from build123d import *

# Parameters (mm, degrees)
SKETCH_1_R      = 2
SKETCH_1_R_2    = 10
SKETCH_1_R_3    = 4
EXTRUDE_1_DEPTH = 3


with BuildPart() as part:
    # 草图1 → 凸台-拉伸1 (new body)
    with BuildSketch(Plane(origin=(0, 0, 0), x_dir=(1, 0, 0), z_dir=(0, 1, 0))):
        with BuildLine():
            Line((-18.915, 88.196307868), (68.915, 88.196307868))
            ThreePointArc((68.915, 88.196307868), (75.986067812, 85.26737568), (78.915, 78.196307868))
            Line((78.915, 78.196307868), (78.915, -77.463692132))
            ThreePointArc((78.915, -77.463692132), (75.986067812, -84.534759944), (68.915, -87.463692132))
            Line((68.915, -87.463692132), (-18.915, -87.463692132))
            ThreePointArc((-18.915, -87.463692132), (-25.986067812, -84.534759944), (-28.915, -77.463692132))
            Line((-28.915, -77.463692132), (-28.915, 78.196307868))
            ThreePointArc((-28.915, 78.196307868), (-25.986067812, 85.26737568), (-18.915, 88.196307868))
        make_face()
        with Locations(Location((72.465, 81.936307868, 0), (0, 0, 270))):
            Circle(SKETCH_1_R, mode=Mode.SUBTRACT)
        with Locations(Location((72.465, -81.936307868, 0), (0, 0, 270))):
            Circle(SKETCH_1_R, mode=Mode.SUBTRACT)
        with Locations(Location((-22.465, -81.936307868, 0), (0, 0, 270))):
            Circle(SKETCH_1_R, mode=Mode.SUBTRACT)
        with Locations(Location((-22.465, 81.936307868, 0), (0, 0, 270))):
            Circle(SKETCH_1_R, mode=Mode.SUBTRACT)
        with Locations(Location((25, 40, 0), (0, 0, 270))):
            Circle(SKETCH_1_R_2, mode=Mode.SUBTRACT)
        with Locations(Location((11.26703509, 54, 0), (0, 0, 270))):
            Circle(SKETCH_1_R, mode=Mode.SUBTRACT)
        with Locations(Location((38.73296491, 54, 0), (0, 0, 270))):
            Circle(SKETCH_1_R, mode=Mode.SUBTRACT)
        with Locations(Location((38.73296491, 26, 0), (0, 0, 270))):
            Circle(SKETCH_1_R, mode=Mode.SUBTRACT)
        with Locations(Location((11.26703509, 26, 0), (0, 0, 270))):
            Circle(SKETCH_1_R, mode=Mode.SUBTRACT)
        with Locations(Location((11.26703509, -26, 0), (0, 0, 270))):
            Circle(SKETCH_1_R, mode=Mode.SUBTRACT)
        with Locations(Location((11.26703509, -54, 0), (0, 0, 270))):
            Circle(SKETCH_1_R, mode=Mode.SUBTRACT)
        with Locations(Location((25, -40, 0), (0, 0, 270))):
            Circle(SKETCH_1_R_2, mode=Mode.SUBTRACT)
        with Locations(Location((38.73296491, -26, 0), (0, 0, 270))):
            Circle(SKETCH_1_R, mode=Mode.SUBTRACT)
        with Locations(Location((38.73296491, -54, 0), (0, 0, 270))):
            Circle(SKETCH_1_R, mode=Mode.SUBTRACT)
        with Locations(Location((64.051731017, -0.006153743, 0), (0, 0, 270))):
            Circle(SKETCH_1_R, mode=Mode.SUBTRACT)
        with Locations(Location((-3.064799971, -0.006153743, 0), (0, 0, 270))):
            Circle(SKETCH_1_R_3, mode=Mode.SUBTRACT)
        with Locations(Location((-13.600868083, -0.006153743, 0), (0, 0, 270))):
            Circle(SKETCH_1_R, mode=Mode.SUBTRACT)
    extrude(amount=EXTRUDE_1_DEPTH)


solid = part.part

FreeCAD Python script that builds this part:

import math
import FreeCAD as App
import Part
import Sketcher

V = App.Vector
Q = App.Units.Quantity

doc = App.newDocument("Part")
params = doc.addObject("Spreadsheet::Sheet", "Params")
for row, (alias, value) in enumerate([
    ("sketch1_diameter", "4 mm"),
    ("sketch1_diameter2", "20 mm"),
    ("sketch1_diameter3", "8 mm"),
    ("sketch1_width", "87.83 mm"),
    ("sketch1_height", "155.66 mm"),
    ("pad1_length", "3 mm"),
], start=1):
    params.set(f"A{row}", alias)
    params.set(f"B{row}", "=" + value)
    params.setAlias(f"B{row}", alias)

body = doc.addObject("PartDesign::Body", "Body")

sketch1 = body.newObject("Sketcher::SketchObject", "Sketch")
sketch1.AttachmentSupport = (doc.getObject("XZ_Plane"), [""])
sketch1.MapMode = "FlatFace"
sketch1.addGeometry(Part.LineSegment(V(68.915, -88.196308, 0), V(-18.915, -88.196308, 0)), False)
sketch1.addGeometry(Part.ArcOfCircle(Part.Circle(V(-18.915, -78.196308, 0), V(0, 0, 1), 10), math.radians(180), math.radians(270)), False)
sketch1.addGeometry(Part.LineSegment(V(-28.915, -78.196308, 0), V(-28.915, 77.463692, 0)), False)
sketch1.addGeometry(Part.ArcOfCircle(Part.Circle(V(-18.915, 77.463692, 0), V(0, 0, 1), 10), math.radians(90), math.radians(180)), False)
sketch1.addGeometry(Part.LineSegment(V(-18.915, 87.463692, 0), V(68.915, 87.463692, 0)), False)
sketch1.addGeometry(Part.ArcOfCircle(Part.Circle(V(68.915, 77.463692, 0), V(0, 0, 1), 10), math.radians(0), math.radians(90)), False)
sketch1.addGeometry(Part.LineSegment(V(78.915, 77.463692, 0), V(78.915, -78.196308, 0)), False)
sketch1.addGeometry(Part.ArcOfCircle(Part.Circle(V(68.915, -78.196308, 0), V(0, 0, 1), 10), math.radians(-90), math.radians(0)), False)
sketch1.addGeometry(Part.Circle(V(72.465, 81.936308, 0), V(0, 0, 1), 2), False)
sketch1.addGeometry(Part.Circle(V(38.732965, 54, 0), V(0, 0, 1), 2), False)
sketch1.addGeometry(Part.Circle(V(64.051731, 0.006154, 0), V(0, 0, 1), 2), False)
sketch1.addGeometry(Part.Circle(V(38.732965, 26, 0), V(0, 0, 1), 2), False)
sketch1.addGeometry(Part.Circle(V(11.267035, 54, 0), V(0, 0, 1), 2), False)
sketch1.addGeometry(Part.Circle(V(-22.465, 81.936308, 0), V(0, 0, 1), 2), False)
sketch1.addGeometry(Part.Circle(V(25, 40, 0), V(0, 0, 1), 10), False)
sketch1.addGeometry(Part.Circle(V(11.267035, 26, 0), V(0, 0, 1), 2), False)
sketch1.addGeometry(Part.Circle(V(-3.0648, 0.006154, 0), V(0, 0, 1), 4), False)
sketch1.addGeometry(Part.Circle(V(-13.600868, 0.006154, 0), V(0, 0, 1), 2), False)
sketch1.addGeometry(Part.Circle(V(38.732965, -26, 0), V(0, 0, 1), 2), False)
sketch1.addGeometry(Part.Circle(V(72.465, -81.936308, 0), V(0, 0, 1), 2), False)
sketch1.addGeometry(Part.Circle(V(38.732965, -54, 0), V(0, 0, 1), 2), False)
sketch1.addGeometry(Part.Circle(V(25, -40, 0), V(0, 0, 1), 10), False)
sketch1.addGeometry(Part.Circle(V(11.267035, -26, 0), V(0, 0, 1), 2), False)
sketch1.addGeometry(Part.Circle(V(11.267035, -54, 0), V(0, 0, 1), 2), False)
sketch1.addGeometry(Part.Circle(V(-22.465, -81.936308, 0), V(0, 0, 1), 2), False)
sketch1.addConstraint(Sketcher.Constraint("Tangent", 0, 2, 1, 2))
sketch1.addConstraint(Sketcher.Constraint("Tangent", 1, 1, 2, 1))
sketch1.addConstraint(Sketcher.Constraint("Tangent", 2, 2, 3, 2))
sketch1.addConstraint(Sketcher.Constraint("Tangent", 3, 1, 4, 1))
sketch1.addConstraint(Sketcher.Constraint("Tangent", 4, 2, 5, 2))
sketch1.addConstraint(Sketcher.Constraint("Tangent", 5, 1, 6, 1))
sketch1.addConstraint(Sketcher.Constraint("Tangent", 6, 2, 7, 2))
sketch1.addConstraint(Sketcher.Constraint("Tangent", 7, 1, 0, 1))
sketch1.addConstraint(Sketcher.Constraint("Horizontal", 0))
sketch1.addConstraint(Sketcher.Constraint("Vertical", 2))
sketch1.addConstraint(Sketcher.Constraint("Horizontal", 4))
sketch1.addConstraint(Sketcher.Constraint("Vertical", 6))
sketch1.addConstraint(Sketcher.Constraint("Equal", 1, 3))
sketch1.addConstraint(Sketcher.Constraint("Equal", 3, 5))
sketch1.addConstraint(Sketcher.Constraint("Equal", 5, 7))
sketch1.addConstraint(Sketcher.Constraint("Equal", 8, 9))
sketch1.addConstraint(Sketcher.Constraint("Equal", 9, 10))
sketch1.addConstraint(Sketcher.Constraint("Equal", 10, 11))
sketch1.addConstraint(Sketcher.Constraint("Equal", 11, 12))
sketch1.addConstraint(Sketcher.Constraint("Equal", 12, 13))
sketch1.addConstraint(Sketcher.Constraint("Equal", 7, 14))
sketch1.addConstraint(Sketcher.Constraint("Equal", 13, 15))
sketch1.addConstraint(Sketcher.Constraint("Equal", 15, 17))
sketch1.addConstraint(Sketcher.Constraint("Equal", 17, 18))
sketch1.addConstraint(Sketcher.Constraint("Equal", 18, 19))
sketch1.addConstraint(Sketcher.Constraint("Equal", 19, 20))
sketch1.addConstraint(Sketcher.Constraint("Equal", 14, 21))
sketch1.addConstraint(Sketcher.Constraint("Equal", 20, 22))
sketch1.addConstraint(Sketcher.Constraint("Equal", 22, 23))
sketch1.addConstraint(Sketcher.Constraint("Equal", 23, 24))
sketch1.addConstraint(Sketcher.Constraint("Symmetric", 11, 3, 18, 3, -1))
sketch1.addConstraint(Sketcher.Constraint("Symmetric", 8, 3, 19, 3, -1))
sketch1.addConstraint(Sketcher.Constraint("Symmetric", 9, 3, 20, 3, -1))
sketch1.addConstraint(Sketcher.Constraint("Symmetric", 14, 3, 21, 3, -1))
sketch1.addConstraint(Sketcher.Constraint("Symmetric", 15, 3, 22, 3, -1))
sketch1.addConstraint(Sketcher.Constraint("Symmetric", 12, 3, 23, 3, -1))
sketch1.addConstraint(Sketcher.Constraint("Symmetric", 13, 3, 24, 3, -1))
sketch1.addConstraint(Sketcher.Constraint("Horizontal", 9, 3, 12, 3))
sketch1.addConstraint(Sketcher.Constraint("Horizontal", 8, 3, 13, 3))
sketch1.addConstraint(Sketcher.Constraint("Horizontal", 11, 3, 15, 3))
sketch1.addConstraint(Sketcher.Constraint("Horizontal", 10, 3, 16, 3))
sketch1.addConstraint(Sketcher.Constraint("Horizontal", 16, 3, 17, 3))
sketch1.addConstraint(Sketcher.Constraint("Vertical", 9, 3, 11, 3))
sketch1.addConstraint(Sketcher.Constraint("Vertical", 12, 3, 15, 3))
sketch1.addConstraint(Sketcher.Constraint("Diameter", 8, Q("4 mm")))
sketch1.addConstraint(Sketcher.Constraint("Diameter", 14, Q("20 mm")))
sketch1.addConstraint(Sketcher.Constraint("Diameter", 16, Q("8 mm")))
sketch1.addConstraint(Sketcher.Constraint("DistanceY", -1, 1, 9, 3, Q("54 mm")))
sketch1.addConstraint(Sketcher.Constraint("DistanceY", -1, 1, 11, 3, Q("26 mm")))
sketch1.addConstraint(Sketcher.Constraint("DistanceX", -1, 1, 14, 3, Q("25 mm")))
sketch1.addConstraint(Sketcher.Constraint("DistanceY", -1, 1, 14, 3, Q("40 mm")))
sketch1.addConstraint(Sketcher.Constraint("DistanceX", 0, 2, 0, 1, Q("87.83 mm")))
sketch1.addConstraint(Sketcher.Constraint("DistanceY", 2, 1, 2, 2, Q("155.66 mm")))
sketch1.addConstraint(Sketcher.Constraint("DistanceX", 5, 3, 8, 3, Q("3.55 mm")))
sketch1.addConstraint(Sketcher.Constraint("DistanceX", 13, 3, 3, 3, Q("3.55 mm")))
sketch1.addConstraint(Sketcher.Constraint("DistanceY", 19, 3, 7, 3, Q("3.74 mm")))
sketch1.addConstraint(Sketcher.Constraint("DistanceX", 1, 3, -1, 1, Q("18.915 mm")))
sketch1.addConstraint(Sketcher.Constraint("DistanceX", 16, 3, -1, 1, Q("3.0648 mm")))
sketch1.addConstraint(Sketcher.Constraint("DistanceX", -1, 1, 10, 3, Q("64.051731 mm")))
sketch1.addConstraint(Sketcher.Constraint("DistanceX", 17, 3, -1, 1, Q("13.600868 mm")))
sketch1.addConstraint(Sketcher.Constraint("DistanceY", 10, 3, 5, 3, Q("77.457538 mm")))
sketch1.addConstraint(Sketcher.Constraint("DistanceX", 12, 3, 9, 3, Q("27.46593 mm")))
sketch1.addConstraint(Sketcher.Constraint("DistanceY", 1, 3, -1, 1, Q("78.196308 mm")))
sketch1.addConstraint(Sketcher.Constraint("DistanceX", -1, 1, 9, 3, Q("38.732965 mm")))
sketch1.setExpression("Constraints[44]", "Params.sketch1_diameter")
sketch1.setExpression("Constraints[45]", "Params.sketch1_diameter2")
sketch1.setExpression("Constraints[46]", "Params.sketch1_diameter3")
sketch1.setExpression("Constraints[51]", "Params.sketch1_width")
sketch1.setExpression("Constraints[52]", "Params.sketch1_height")
pad1 = body.newObject("PartDesign::Pad", "Pad")
pad1.Profile = sketch1
pad1.setExpression("Length", "Params.pad1_length")
pad1.Reversed = True

doc.recompute()
